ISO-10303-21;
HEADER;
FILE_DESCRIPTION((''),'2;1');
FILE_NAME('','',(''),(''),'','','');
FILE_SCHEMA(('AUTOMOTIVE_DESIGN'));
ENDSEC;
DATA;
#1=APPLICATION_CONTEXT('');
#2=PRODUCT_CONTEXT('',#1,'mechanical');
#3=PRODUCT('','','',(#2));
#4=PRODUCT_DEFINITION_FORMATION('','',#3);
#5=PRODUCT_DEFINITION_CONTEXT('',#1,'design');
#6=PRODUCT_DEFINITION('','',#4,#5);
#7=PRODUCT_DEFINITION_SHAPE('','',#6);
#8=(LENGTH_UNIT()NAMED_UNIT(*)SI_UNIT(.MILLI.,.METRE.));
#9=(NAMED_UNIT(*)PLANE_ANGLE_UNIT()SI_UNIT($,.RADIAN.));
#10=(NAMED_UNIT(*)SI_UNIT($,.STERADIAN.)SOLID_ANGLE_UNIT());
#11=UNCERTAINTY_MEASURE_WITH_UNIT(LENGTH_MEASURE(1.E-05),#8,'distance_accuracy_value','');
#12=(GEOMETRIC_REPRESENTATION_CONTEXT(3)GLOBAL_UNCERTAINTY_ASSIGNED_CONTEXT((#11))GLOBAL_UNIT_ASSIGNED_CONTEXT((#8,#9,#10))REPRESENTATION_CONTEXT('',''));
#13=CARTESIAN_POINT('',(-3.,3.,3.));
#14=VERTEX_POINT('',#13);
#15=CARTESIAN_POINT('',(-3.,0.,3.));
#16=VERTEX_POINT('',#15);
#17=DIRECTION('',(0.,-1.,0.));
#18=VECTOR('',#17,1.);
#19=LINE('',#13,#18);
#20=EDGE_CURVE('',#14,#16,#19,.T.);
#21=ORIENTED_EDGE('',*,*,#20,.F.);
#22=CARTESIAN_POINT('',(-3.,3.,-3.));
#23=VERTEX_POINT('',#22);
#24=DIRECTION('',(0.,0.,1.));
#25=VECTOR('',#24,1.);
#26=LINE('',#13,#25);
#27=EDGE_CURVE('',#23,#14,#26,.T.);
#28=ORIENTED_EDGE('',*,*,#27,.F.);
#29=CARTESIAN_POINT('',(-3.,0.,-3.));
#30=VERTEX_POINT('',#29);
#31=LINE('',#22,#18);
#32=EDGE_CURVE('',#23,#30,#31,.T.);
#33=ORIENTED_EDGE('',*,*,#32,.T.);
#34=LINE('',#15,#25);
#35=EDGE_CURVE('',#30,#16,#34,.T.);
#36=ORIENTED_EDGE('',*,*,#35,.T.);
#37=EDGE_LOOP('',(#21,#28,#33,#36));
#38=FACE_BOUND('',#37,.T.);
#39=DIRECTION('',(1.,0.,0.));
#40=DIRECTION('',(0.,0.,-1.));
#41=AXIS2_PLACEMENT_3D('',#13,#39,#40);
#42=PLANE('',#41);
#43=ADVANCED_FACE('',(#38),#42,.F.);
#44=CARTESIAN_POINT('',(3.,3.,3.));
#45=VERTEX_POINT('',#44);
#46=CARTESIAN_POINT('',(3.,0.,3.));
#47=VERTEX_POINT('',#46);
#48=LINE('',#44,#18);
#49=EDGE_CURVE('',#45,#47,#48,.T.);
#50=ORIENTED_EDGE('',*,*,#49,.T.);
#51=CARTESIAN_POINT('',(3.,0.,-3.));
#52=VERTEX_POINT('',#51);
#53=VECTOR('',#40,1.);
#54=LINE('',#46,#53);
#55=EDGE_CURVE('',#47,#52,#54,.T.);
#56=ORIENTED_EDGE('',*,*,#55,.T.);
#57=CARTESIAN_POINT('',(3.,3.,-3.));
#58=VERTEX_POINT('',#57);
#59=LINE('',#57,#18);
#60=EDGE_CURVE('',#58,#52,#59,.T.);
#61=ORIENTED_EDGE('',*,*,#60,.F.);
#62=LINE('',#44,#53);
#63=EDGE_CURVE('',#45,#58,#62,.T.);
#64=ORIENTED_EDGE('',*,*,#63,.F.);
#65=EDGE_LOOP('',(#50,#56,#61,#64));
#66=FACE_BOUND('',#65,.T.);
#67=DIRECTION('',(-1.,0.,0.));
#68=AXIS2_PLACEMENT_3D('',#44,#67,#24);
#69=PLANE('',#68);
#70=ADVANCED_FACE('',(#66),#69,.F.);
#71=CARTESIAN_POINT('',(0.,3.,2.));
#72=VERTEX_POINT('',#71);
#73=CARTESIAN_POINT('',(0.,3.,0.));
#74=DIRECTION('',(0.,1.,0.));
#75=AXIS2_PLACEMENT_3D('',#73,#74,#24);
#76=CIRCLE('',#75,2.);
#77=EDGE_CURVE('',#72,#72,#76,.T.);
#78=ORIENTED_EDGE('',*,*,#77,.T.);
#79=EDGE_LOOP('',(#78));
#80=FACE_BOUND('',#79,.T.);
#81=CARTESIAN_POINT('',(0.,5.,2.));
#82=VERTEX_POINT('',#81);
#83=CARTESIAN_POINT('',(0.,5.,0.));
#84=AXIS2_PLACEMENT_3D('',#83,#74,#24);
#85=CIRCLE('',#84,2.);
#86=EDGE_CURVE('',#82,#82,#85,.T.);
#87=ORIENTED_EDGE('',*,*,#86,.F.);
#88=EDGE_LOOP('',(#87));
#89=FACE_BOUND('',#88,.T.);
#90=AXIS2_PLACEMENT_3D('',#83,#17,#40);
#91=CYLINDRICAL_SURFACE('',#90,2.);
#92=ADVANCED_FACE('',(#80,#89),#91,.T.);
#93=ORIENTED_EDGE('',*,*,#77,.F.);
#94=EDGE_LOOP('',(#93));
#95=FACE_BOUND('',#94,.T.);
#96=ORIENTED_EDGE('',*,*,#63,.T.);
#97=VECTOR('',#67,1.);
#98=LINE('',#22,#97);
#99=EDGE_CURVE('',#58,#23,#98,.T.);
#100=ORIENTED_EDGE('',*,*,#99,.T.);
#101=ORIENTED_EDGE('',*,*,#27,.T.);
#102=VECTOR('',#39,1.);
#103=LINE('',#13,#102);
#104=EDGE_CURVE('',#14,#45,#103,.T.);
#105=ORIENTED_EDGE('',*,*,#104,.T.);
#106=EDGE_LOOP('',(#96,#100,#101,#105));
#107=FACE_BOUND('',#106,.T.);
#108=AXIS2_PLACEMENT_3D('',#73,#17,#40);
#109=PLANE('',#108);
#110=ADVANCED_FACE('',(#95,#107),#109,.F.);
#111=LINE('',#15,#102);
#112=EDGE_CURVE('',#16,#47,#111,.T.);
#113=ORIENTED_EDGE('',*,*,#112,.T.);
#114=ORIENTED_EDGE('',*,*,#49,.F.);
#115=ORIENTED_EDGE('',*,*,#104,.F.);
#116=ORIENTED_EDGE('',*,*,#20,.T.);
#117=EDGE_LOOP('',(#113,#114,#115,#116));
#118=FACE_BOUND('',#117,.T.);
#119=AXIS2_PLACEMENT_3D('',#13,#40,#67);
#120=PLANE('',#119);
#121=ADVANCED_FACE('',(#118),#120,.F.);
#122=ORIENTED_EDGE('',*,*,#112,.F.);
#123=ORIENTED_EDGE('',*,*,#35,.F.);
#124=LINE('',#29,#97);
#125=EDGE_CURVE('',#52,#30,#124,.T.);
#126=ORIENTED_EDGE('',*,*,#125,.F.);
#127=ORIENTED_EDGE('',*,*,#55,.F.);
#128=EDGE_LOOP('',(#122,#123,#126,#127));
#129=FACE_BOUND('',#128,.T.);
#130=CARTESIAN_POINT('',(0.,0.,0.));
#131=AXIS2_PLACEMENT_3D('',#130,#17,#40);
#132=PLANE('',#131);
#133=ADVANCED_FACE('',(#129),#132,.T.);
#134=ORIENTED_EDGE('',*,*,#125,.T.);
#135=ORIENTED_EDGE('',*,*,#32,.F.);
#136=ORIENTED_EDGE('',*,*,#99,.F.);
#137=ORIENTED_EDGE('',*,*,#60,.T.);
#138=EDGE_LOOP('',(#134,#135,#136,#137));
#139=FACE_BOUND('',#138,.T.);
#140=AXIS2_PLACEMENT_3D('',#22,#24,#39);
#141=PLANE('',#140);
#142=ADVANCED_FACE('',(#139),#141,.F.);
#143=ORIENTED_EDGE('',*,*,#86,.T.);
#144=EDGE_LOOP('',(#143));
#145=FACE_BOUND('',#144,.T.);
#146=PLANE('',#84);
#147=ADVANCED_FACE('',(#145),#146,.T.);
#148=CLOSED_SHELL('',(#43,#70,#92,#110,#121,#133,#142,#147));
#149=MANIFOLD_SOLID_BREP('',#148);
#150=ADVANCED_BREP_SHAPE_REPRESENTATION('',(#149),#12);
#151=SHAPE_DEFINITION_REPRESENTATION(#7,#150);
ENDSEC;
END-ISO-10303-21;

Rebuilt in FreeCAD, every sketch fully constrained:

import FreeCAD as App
import Part
import Sketcher


def add_polygon(sketch, points):
    """Adds a closed chain of lines whose ends are joined by coincident constraints."""
    first, n = sketch.GeometryCount, len(points)
    for a, b in zip(points, points[1:] + points[:1]):
        sketch.addGeometry(Part.LineSegment(App.Vector(*a, 0), App.Vector(*b, 0)), False)
    for i in range(n):
        sketch.addConstraint(Sketcher.Constraint("Coincident", first + i, 2, first + (i + 1) % n, 1))

doc = App.newDocument("Part")
body = doc.addObject("PartDesign::Body", "Body")

sketch1 = doc.addObject("Sketcher::SketchObject", "Sketch")
body.addObject(sketch1)
sketch1.AttachmentSupport = (doc.XZ_Plane, [""])
sketch1.MapMode = "FlatFace"
add_polygon(sketch1, [(-3, -3), (-3, 3), (3, 3), (3, -3)])
sketch1.addConstraint(Sketcher.Constraint("Vertical", 0))
sketch1.addConstraint(Sketcher.Constraint("Horizontal", 1))
sketch1.addConstraint(Sketcher.Constraint("Vertical", 2))
sketch1.addConstraint(Sketcher.Constraint("Horizontal", 3))
sketch1.addConstraint(Sketcher.Constraint("Symmetric", 0, 2, 2, 2, -1, 1))
sketch1.addConstraint(Sketcher.Constraint("Equal", 3, 0))
sketch1.addConstraint(Sketcher.Constraint("DistanceX", 1, 1, 1, 2, 6.0))
pad1 = doc.addObject("PartDesign::Pad", "Pad")
body.addObject(pad1)
pad1.Profile = sketch1
pad1.Length = 3
pad1.Reversed = True

sketch2 = doc.addObject("Sketcher::SketchObject", "Sketch001")
body.addObject(sketch2)
sketch2.AttachmentSupport = (doc.XZ_Plane, [""])
sketch2.MapMode = "FlatFace"
sketch2.AttachmentOffset = App.Placement(App.Vector(0, 0, -3), App.Rotation())
sketch2.addGeometry(Part.Circle(App.Vector(0, 0, 0), App.Vector(0, 0, 1), 2), False)
sketch2.addConstraint(Sketcher.Constraint("Coincident", 0, 3, -1, 1))
sketch2.addConstraint(Sketcher.Constraint("Diameter", 0, 4.0))
pad2 = doc.addObject("PartDesign::Pad", "Pad001")
body.addObject(pad2)
pad2.Profile = sketch2
pad2.Length = 2
pad2.Reversed = True

doc.recompute()
